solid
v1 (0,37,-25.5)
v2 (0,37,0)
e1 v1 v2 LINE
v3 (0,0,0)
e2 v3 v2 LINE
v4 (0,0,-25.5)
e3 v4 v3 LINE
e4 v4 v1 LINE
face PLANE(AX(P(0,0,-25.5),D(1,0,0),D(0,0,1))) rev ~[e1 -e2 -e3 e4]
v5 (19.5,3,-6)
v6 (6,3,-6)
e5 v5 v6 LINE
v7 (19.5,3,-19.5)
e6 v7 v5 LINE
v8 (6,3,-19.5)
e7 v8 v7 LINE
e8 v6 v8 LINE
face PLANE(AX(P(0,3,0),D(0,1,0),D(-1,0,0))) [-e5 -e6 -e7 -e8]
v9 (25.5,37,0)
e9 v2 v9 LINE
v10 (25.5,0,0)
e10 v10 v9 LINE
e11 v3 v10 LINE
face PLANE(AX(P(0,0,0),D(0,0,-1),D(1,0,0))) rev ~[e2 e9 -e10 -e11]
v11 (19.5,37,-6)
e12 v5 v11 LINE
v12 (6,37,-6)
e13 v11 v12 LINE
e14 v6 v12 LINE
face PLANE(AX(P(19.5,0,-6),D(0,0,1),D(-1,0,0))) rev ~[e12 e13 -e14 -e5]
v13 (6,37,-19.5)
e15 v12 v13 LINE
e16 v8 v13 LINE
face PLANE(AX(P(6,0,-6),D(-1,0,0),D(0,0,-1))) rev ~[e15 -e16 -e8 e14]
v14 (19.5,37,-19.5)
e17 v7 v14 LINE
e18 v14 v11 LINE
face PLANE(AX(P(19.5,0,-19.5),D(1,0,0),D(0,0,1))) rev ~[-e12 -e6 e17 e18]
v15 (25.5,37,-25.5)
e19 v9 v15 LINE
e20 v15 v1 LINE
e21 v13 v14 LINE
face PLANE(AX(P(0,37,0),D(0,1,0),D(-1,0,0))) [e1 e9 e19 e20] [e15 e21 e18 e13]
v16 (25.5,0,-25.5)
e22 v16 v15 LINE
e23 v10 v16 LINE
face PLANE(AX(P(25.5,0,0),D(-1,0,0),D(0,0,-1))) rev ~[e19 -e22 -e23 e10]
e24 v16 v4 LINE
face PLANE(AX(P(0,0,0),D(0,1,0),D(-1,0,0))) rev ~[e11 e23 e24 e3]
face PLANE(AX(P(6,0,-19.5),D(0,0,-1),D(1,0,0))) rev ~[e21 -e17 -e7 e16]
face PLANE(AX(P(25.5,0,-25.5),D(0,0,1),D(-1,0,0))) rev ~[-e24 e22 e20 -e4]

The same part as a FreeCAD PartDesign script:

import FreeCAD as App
import Part
import Sketcher

V = App.Vector

doc = App.newDocument("Part")
body = doc.addObject("PartDesign::Body", "Body")

sketch1 = body.newObject("Sketcher::SketchObject", "Sketch")
sketch1.AttachmentSupport = (doc.getObject("XZ_Plane"), [""])
sketch1.MapMode = "FlatFace"
sketch1.addGeometry([
    Part.LineSegment(V(20, -20, 0), V(6, -20, 0)),
    Part.LineSegment(V(6, -20, 0), V(6, -6, 0)),
    Part.LineSegment(V(6, -6, 0), V(20, -6, 0)),
    Part.LineSegment(V(20, -6, 0), V(20, -20, 0)),
], False)
sketch1.addConstraint([
    Sketcher.Constraint("Coincident", 0, 2, 1, 1),
    Sketcher.Constraint("Coincident", 1, 2, 2, 1),
    Sketcher.Constraint("Coincident", 2, 2, 3, 1),
    Sketcher.Constraint("Coincident", 3, 2, 0, 1),
    Sketcher.Constraint("Horizontal", 0),
    Sketcher.Constraint("Vertical", 1),
    Sketcher.Constraint("Horizontal", 2),
    Sketcher.Constraint("Vertical", 3),
    Sketcher.Constraint("Equal", 2, 1),
    Sketcher.Constraint("DistanceX", 0, 2, 0, 1, 13.5),
    Sketcher.Constraint("DistanceX", -1, 1, 0, 2, 6.0),
    Sketcher.Constraint("DistanceY", 1, 2, -1, 1, 6.0),
])
pad1 = body.newObject("PartDesign::Pad", "Pad")
pad1.Profile = sketch1
pad1.Length = 3
pad1.Reversed = True

sketch2 = body.newObject("Sketcher::SketchObject", "Sketch001")
sketch2.AttachmentSupport = (doc.getObject("XZ_Plane"), [""])
sketch2.MapMode = "FlatFace"
sketch2.addGeometry([
    Part.LineSegment(V(0, -26, 0), V(0, 0, 0)),
    Part.LineSegment(V(0, 0, 0), V(26, 0, 0)),
    Part.LineSegment(V(26, 0, 0), V(26, -26, 0)),
    Part.LineSegment(V(26, -26, 0), V(0, -26, 0)),
    Part.LineSegment(V(6, -6, 0), V(6, -20, 0)),
    Part.LineSegment(V(6, -20, 0), V(20, -20, 0)),
    Part.LineSegment(V(20, -20, 0), V(20, -6, 0)),
    Part.LineSegment(V(20, -6, 0), V(6, -6, 0)),
], False)
sketch2.addConstraint([
    Sketcher.Constraint("Coincident", 0, 2, 1, 1),
    Sketcher.Constraint("Coincident", 1, 2, 2, 1),
    Sketcher.Constraint("Coincident", 2, 2, 3, 1),
    Sketcher.Constraint("Coincident", 3, 2, 0, 1),
    Sketcher.Constraint("Coincident", 4, 2, 5, 1),
    Sketcher.Constraint("Coincident", 5, 2, 6, 1),
    Sketcher.Constraint("Coincident", 6, 2, 7, 1),
    Sketcher.Constraint("Coincident", 7, 2, 4, 1),
    Sketcher.Constraint("Vertical", 0),
    Sketcher.Constraint("Horizontal", 1),
    Sketcher.Constraint("Vertical", 2),
    Sketcher.Constraint("Horizontal", 3),
    Sketcher.Constraint("Vertical", 4),
    Sketcher.Constraint("Horizontal", 5),
    Sketcher.Constraint("Vertical", 6),
    Sketcher.Constraint("Horizontal", 7),
    Sketcher.Constraint("Coincident", 0, 2, -1, 1),
    Sketcher.Constraint("Equal", 3, 0),
    Sketcher.Constraint("Equal", 7, 4),
    Sketcher.Constraint("DistanceX", 5, 1, 5, 2, 13.5),
    Sketcher.Constraint("DistanceX", -1, 1, 4, 2, 6.0),
    Sketcher.Constraint("DistanceY", 6, 2, -1, 1, 6.0),
    Sketcher.Constraint("DistanceY", 3, 2, 4, 2, 6.0),
])
pad2 = body.newObject("PartDesign::Pad", "Pad001")
pad2.Profile = sketch2
pad2.Length = 37
pad2.Reversed = True

doc.recompute()
